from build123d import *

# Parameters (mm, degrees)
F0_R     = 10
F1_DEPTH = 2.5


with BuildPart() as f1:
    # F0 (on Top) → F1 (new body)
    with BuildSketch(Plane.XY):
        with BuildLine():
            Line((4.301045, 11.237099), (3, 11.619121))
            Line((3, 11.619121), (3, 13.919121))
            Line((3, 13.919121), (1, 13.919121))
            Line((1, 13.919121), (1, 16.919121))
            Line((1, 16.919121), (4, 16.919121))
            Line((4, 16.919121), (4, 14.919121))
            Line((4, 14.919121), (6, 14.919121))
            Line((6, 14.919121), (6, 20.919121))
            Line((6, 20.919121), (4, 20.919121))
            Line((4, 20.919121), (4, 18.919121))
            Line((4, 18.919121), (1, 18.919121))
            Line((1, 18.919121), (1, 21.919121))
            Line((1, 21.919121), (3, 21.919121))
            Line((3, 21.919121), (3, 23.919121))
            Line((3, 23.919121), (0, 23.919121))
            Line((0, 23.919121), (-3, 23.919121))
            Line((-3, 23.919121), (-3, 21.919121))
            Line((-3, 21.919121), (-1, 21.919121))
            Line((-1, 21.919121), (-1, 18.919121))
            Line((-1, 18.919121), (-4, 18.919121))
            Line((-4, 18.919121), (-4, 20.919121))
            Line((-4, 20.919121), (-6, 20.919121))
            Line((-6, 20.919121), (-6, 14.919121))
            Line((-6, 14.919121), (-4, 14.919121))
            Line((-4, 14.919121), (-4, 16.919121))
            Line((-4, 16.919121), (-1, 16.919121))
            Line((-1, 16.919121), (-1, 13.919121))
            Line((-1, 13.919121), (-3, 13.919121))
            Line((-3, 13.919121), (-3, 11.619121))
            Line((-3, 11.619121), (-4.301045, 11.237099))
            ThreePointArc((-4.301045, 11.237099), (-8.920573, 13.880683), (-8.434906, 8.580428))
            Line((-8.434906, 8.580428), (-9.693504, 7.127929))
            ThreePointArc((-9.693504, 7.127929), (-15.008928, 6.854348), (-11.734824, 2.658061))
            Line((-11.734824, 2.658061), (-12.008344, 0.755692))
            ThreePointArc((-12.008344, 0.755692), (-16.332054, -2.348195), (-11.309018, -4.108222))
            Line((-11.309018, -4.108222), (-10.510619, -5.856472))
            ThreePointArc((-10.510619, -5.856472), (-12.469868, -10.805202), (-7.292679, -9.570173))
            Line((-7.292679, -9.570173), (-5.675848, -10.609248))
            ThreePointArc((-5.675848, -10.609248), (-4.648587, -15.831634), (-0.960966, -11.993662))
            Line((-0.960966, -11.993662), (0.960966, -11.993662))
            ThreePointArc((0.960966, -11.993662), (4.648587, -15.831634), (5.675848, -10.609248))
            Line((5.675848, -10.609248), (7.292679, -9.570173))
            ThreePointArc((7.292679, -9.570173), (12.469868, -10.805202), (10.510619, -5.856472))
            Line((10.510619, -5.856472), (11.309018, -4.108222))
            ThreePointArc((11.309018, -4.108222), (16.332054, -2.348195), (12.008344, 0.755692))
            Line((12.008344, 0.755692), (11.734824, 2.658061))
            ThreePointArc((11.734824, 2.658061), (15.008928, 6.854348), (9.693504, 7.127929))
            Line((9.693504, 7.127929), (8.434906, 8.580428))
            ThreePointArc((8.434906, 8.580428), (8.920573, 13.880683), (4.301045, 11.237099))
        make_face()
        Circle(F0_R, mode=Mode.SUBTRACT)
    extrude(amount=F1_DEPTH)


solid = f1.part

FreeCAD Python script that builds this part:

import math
import FreeCAD as App
import Part
import Sketcher
Q = App.Units.Quantity

doc = App.newDocument("Part")
body = doc.addObject("PartDesign::Body", "Body")

sketch1 = body.newObject("Sketcher::SketchObject", "Sketch")
sketch1.AttachmentSupport = (doc.getObject("XY_Plane"), [""])
sketch1.MapMode = "FlatFace"
sketch1.addGeometry([
    Part.LineSegment(App.Vector(4.3, 11.2, 0), App.Vector(3, 11.6, 0)),
    Part.LineSegment(App.Vector(3, 11.6, 0), App.Vector(3, 13.9, 0)),
    Part.LineSegment(App.Vector(3, 13.9, 0), App.Vector(1, 13.9, 0)),
    Part.LineSegment(App.Vector(1, 13.9, 0), App.Vector(1, 16.9, 0)),
    Part.LineSegment(App.Vector(1, 16.9, 0), App.Vector(4, 16.9, 0)),
    Part.LineSegment(App.Vector(4, 16.9, 0), App.Vector(4, 14.9, 0)),
    Part.LineSegment(App.Vector(4, 14.9, 0), App.Vector(6, 14.9, 0)),
    Part.LineSegment(App.Vector(6, 14.9, 0), App.Vector(6, 20.9, 0)),
    Part.LineSegment(App.Vector(6, 20.9, 0), App.Vector(4, 20.9, 0)),
    Part.LineSegment(App.Vector(4, 20.9, 0), App.Vector(4, 18.9, 0)),
    Part.LineSegment(App.Vector(4, 18.9, 0), App.Vector(1, 18.9, 0)),
    Part.LineSegment(App.Vector(1, 18.9, 0), App.Vector(1, 21.9, 0)),
    Part.LineSegment(App.Vector(1, 21.9, 0), App.Vector(3, 21.9, 0)),
    Part.LineSegment(App.Vector(3, 21.9, 0), App.Vector(3, 23.9, 0)),
    Part.LineSegment(App.Vector(3, 23.9, 0), App.Vector(-3, 23.9, 0)),
    Part.LineSegment(App.Vector(-3, 23.9, 0), App.Vector(-3, 21.9, 0)),
    Part.LineSegment(App.Vector(-3, 21.9, 0), App.Vector(-1, 21.9, 0)),
    Part.LineSegment(App.Vector(-1, 21.9, 0), App.Vector(-1, 18.9, 0)),
    Part.LineSegment(App.Vector(-1, 18.9, 0), App.Vector(-4, 18.9, 0)),
    Part.LineSegment(App.Vector(-4, 18.9, 0), App.Vector(-4, 20.9, 0)),
    Part.LineSegment(App.Vector(-4, 20.9, 0), App.Vector(-6, 20.9, 0)),
    Part.LineSegment(App.Vector(-6, 20.9, 0), App.Vector(-6, 14.9, 0)),
    Part.LineSegment(App.Vector(-6, 14.9, 0), App.Vector(-4, 14.9, 0)),
    Part.LineSegment(App.Vector(-4, 14.9, 0), App.Vector(-4, 16.9, 0)),
    Part.LineSegment(App.Vector(-4, 16.9, 0), App.Vector(-1, 16.9, 0)),
    Part.LineSegment(App.Vector(-1, 16.9, 0), App.Vector(-1, 13.9, 0)),
    Part.LineSegment(App.Vector(-1, 13.9, 0), App.Vector(-3, 13.9, 0)),
    Part.LineSegment(App.Vector(-3, 13.9, 0), App.Vector(-3, 11.6, 0)),
    Part.LineSegment(App.Vector(-3, 11.6, 0), App.Vector(-4.3, 11.2, 0)),
    Part.ArcOfCircle(Part.Circle(App.Vector(-7.3, 11.4, 0), App.Vector(0, 0, 1), 3), math.radians(-2), math.radians(248)),
    Part.LineSegment(App.Vector(-8.4, 8.6, 0), App.Vector(-9.7, 7.1, 0)),
    Part.ArcOfCircle(Part.Circle(App.Vector(-12.3, 5.6, 0), App.Vector(0, 0, 1), 3), math.radians(30), math.radians(280)),
    Part.LineSegment(App.Vector(-11.7, 2.7, 0), App.Vector(-12, 0.8, 0)),
    Part.ArcOfCircle(Part.Circle(App.Vector(-13.4, -1.9, 0), App.Vector(0, 0, 1), 3), math.radians(63), math.radians(313)),
    Part.LineSegment(App.Vector(-11.3, -4.1, 0), App.Vector(-10.5, -5.9, 0)),
    Part.ArcOfCircle(Part.Circle(App.Vector(-10.2, -8.8, 0), App.Vector(0, 0, 1), 3), math.radians(96), math.radians(346)),
    Part.LineSegment(App.Vector(-7.3, -9.6, 0), App.Vector(-5.7, -10.6, 0)),
    Part.ArcOfCircle(Part.Circle(App.Vector(-3.8, -13, 0), App.Vector(0, 0, 1), 3), math.radians(129), math.radians(379)),
    Part.LineSegment(App.Vector(-1, -12, 0), App.Vector(1, -12, 0)),
    Part.ArcOfCircle(Part.Circle(App.Vector(3.8, -13, 0), App.Vector(0, 0, 1), 3), math.radians(161), math.radians(411)),
    Part.LineSegment(App.Vector(5.7, -10.6, 0), App.Vector(7.3, -9.6, 0)),
    Part.ArcOfCircle(Part.Circle(App.Vector(10.2, -8.8, 0), App.Vector(0, 0, 1), 3), math.radians(-166), math.radians(84)),
    Part.LineSegment(App.Vector(10.5, -5.9, 0), App.Vector(11.3, -4.1, 0)),
    Part.ArcOfCircle(Part.Circle(App.Vector(13.4, -1.9, 0), App.Vector(0, 0, 1), 3), math.radians(-133), math.radians(117)),
    Part.LineSegment(App.Vector(12, 0.8, 0), App.Vector(11.7, 2.7, 0)),
    Part.ArcOfCircle(Part.Circle(App.Vector(12.3, 5.6, 0), App.Vector(0, 0, 1), 3), math.radians(-100), math.radians(150)),
    Part.LineSegment(App.Vector(9.7, 7.1, 0), App.Vector(8.4, 8.6, 0)),
    Part.ArcOfCircle(Part.Circle(App.Vector(7.3, 11.4, 0), App.Vector(0, 0, 1), 3), math.radians(-68), math.radians(182)),
    Part.Circle(App.Vector(0, 0, 0), App.Vector(0, 0, 1), 10),
], False)
sketch1.addConstraint([
    Sketcher.Constraint("Coincident", 0, 2, 1, 1),
    Sketcher.Constraint("Coincident", 1, 2, 2, 1),
    Sketcher.Constraint("Coincident", 2, 2, 3, 1),
    Sketcher.Constraint("Coincident", 3, 2, 4, 1),
    Sketcher.Constraint("Coincident", 4, 2, 5, 1),
    Sketcher.Constraint("Coincident", 5, 2, 6, 1),
    Sketcher.Constraint("Coincident", 6, 2, 7, 1),
    Sketcher.Constraint("Coincident", 7, 2, 8, 1),
    Sketcher.Constraint("Coincident", 8, 2, 9, 1),
    Sketcher.Constraint("Coincident", 9, 2, 10, 1),
    Sketcher.Constraint("Coincident", 10, 2, 11, 1),
    Sketcher.Constraint("Coincident", 11, 2, 12, 1),
    Sketcher.Constraint("Coincident", 12, 2, 13, 1),
    Sketcher.Constraint("Coincident", 13, 2, 14, 1),
    Sketcher.Constraint("Coincident", 14, 2, 15, 1),
    Sketcher.Constraint("Coincident", 15, 2, 16, 1),
    Sketcher.Constraint("Coincident", 16, 2, 17, 1),
    Sketcher.Constraint("Coincident", 17, 2, 18, 1),
    Sketcher.Constraint("Coincident", 18, 2, 19, 1),
    Sketcher.Constraint("Coincident", 19, 2, 20, 1),
    Sketcher.Constraint("Coincident", 20, 2, 21, 1),
    Sketcher.Constraint("Coincident", 21, 2, 22, 1),
    Sketcher.Constraint("Coincident", 22, 2, 23, 1),
    Sketcher.Constraint("Coincident", 23, 2, 24, 1),
    Sketcher.Constraint("Coincident", 24, 2, 25, 1),
    Sketcher.Constraint("Coincident", 25, 2, 26, 1),
    Sketcher.Constraint("Coincident", 26, 2, 27, 1),
    Sketcher.Constraint("Coincident", 27, 2, 28, 1),
    Sketcher.Constraint("Coincident", 28, 2, 29, 1),
    Sketcher.Constraint("Coincident", 29, 2, 30, 1),
    Sketcher.Constraint("Coincident", 30, 2, 31, 1),
    Sketcher.Constraint("Coincident", 31, 2, 32, 1),
    Sketcher.Constraint("Coincident", 32, 2, 33, 1),
    Sketcher.Constraint("Coincident", 33, 2, 34, 1),
    Sketcher.Constraint("Coincident", 34, 2, 35, 1),
    Sketcher.Constraint("Coincident", 35, 2, 36, 1),
    Sketcher.Constraint("Coincident", 36, 2, 37, 1),
    Sketcher.Constraint("Coincident", 37, 2, 38, 1),
    Sketcher.Constraint("Coincident", 38, 2, 39, 1),
    Sketcher.Constraint("Coincident", 39, 2, 40, 1),
    Sketcher.Constraint("Coincident", 40, 2, 41, 1),
    Sketcher.Constraint("Coincident", 41, 2, 42, 1),
    Sketcher.Constraint("Coincident", 42, 2, 43, 1),
    Sketcher.Constraint("Coincident", 43, 2, 44, 1),
    Sketcher.Constraint("Coincident", 44, 2, 45, 1),
    Sketcher.Constraint("Coincident", 45, 2, 46, 1),
    Sketcher.Constraint("Coincident", 46, 2, 47, 1),
    Sketcher.Constraint("Coincident", 47, 2, 0, 1),
    Sketcher.Constraint("Vertical", 1),
    Sketcher.Constraint("Horizontal", 2),
    Sketcher.Constraint("Vertical", 3),
    Sketcher.Constraint("Horizontal", 4),
    Sketcher.Constraint("Vertical", 5),
    Sketcher.Constraint("Horizontal", 6),
    Sketcher.Constraint("Vertical", 7),
    Sketcher.Constraint("Horizontal", 8),
    Sketcher.Constraint("Vertical", 9),
    Sketcher.Constraint("Horizontal", 10),
    Sketcher.Constraint("Vertical", 11),
    Sketcher.Constraint("Horizontal", 12),
    Sketcher.Constraint("Vertical", 13),
    Sketcher.Constraint("Horizontal", 14),
    Sketcher.Constraint("Vertical", 15),
    Sketcher.Constraint("Horizontal", 16),
    Sketcher.Constraint("Vertical", 17),
    Sketcher.Constraint("Horizontal", 18),
    Sketcher.Constraint("Vertical", 19),
    Sketcher.Constraint("Horizontal", 20),
    Sketcher.Constraint("Vertical", 21),
    Sketcher.Constraint("Horizontal", 22),
    Sketcher.Constraint("Vertical", 23),
    Sketcher.Constraint("Horizontal", 24),
    Sketcher.Constraint("Vertical", 25),
    Sketcher.Constraint("Horizontal", 26),
    Sketcher.Constraint("Vertical", 27),
    Sketcher.Constraint("Horizontal", 38),
    Sketcher.Constraint("Coincident", 48, 3, -1, 1),
    Sketcher.Constraint("Equal", 29, 31),
    Sketcher.Constraint("Equal", 31, 33),
    Sketcher.Constraint("Equal", 33, 35),
    Sketcher.Constraint("Equal", 35, 37),
    Sketcher.Constraint("Equal", 37, 39),
    Sketcher.Constraint("Equal", 39, 41),
    Sketcher.Constraint("Equal", 41, 43),
    Sketcher.Constraint("Equal", 43, 45),
    Sketcher.Constraint("Equal", 45, 47),
    Sketcher.Constraint("Symmetric", 37, 3, 39, 3, -2),
    Sketcher.Constraint("Symmetric", 35, 3, 41, 3, -2),
    Sketcher.Constraint("Symmetric", 33, 3, 43, 3, -2),
    Sketcher.Constraint("Symmetric", 31, 3, 45, 3, -2),
    Sketcher.Constraint("Symmetric", 29, 3, 47, 3, -2),
    Sketcher.Constraint("Symmetric", 12, 2, 15, 2, -2),
    Sketcher.Constraint("Symmetric", 10, 2, 17, 2, -2),
    Sketcher.Constraint("Symmetric", 8, 2, 19, 2, -2),
    Sketcher.Constraint("Symmetric", 6, 2, 21, 2, -2),
    Sketcher.Constraint("Symmetric", 4, 2, 23, 2, -2),
    Sketcher.Constraint("Symmetric", 2, 2, 25, 2, -2),
    Sketcher.Constraint("Symmetric", 0, 2, 27, 2, -2),
    Sketcher.Constraint("Horizontal", 36, 2, 39, 2),
    Sketcher.Constraint("Horizontal", 35, 2, 40, 2),
    Sketcher.Constraint("Horizontal", 34, 2, 41, 2),
    Sketcher.Constraint("Horizontal", 33, 2, 42, 2),
    Sketcher.Constraint("Horizontal", 32, 2, 43, 2),
    Sketcher.Constraint("Horizontal", 31, 2, 44, 2),
    Sketcher.Constraint("Horizontal", 30, 2, 45, 2),
    Sketcher.Constraint("Horizontal", 29, 2, 46, 2),
    Sketcher.Constraint("Horizontal", 28, 2, 47, 2),
    Sketcher.Constraint("Vertical", 5, 2, 8, 2),
    Sketcher.Constraint("Vertical", 3, 2, 10, 2),
    Sketcher.Constraint("Vertical", 1, 2, 12, 2),
    Sketcher.Constraint("Equal", 2, 6),
    Sketcher.Constraint("Equal", 24, 3),
    Sketcher.Constraint("Equal", 26, 5),
    Sketcher.Constraint("Equal", 14, 7),
    Sketcher.Constraint("Equal", 5, 9),
    Sketcher.Constraint("Equal", 3, 11),
    Sketcher.Constraint("Equal", 9, 13),
    Sketcher.Constraint("Equal", 30, 32),
    Sketcher.Constraint("Equal", 32, 34),
    Sketcher.Constraint("Equal", 34, 36),
    Sketcher.Constraint("Diameter", 48, Q("20 mm")),
    Sketcher.Constraint("Radius", 29, Q("3 mm")),
    Sketcher.Constraint("DistanceX", 2, 2, 2, 1, Q("2 mm")),
    Sketcher.Constraint("DistanceX", 4, 1, 4, 2, Q("3 mm")),
    Sketcher.Constraint("DistanceX", 14, 2, 14, 1, Q("6 mm")),
    Sketcher.Constraint("DistanceY", 1, 1, 1, 2, Q("2.3 mm")),
    Sketcher.Constraint("DistanceX", 34, 2, 35, 3, Q("0.308 mm")),
    Sketcher.Constraint("DistanceY", -1, 1, 28, 2, Q("11.237099 mm")),
    Sketcher.Constraint("DistanceX", 33, 3, 37, 3, Q("9.5592 mm")),
    Sketcher.Constraint("DistanceX", 29, 3, 47, 3, Q("14.597302 mm")),
    Sketcher.Constraint("DistanceY", 47, 3, 0, 2, Q("0.262198 mm")),
    Sketcher.Constraint("DistanceX", 30, 2, 29, 2, Q("1.258598 mm")),
    Sketcher.Constraint("DistanceY", 30, 2, 29, 2, Q("1.452499 mm")),
    Sketcher.Constraint("DistanceX", 33, 2, 35, 3, Q("1.106399 mm")),
    Sketcher.Constraint("DistanceY", 35, 2, 34, 2, Q("3.713701 mm")),
    Sketcher.Constraint("Distance", 0, Q("1.355972 mm")),
    Sketcher.Constraint("DistanceX", 38, 1, 38, 2, Q("1.921932 mm")),
    Sketcher.Constraint("DistanceX", 33, 3, -1, 1, Q("13.36259 mm")),
    Sketcher.Constraint("DistanceY", 33, 3, -1, 1, Q("1.92125 mm")),
    Sketcher.Constraint("DistanceX", 35, 3, -1, 1, Q("10.202619 mm")),
    Sketcher.Constraint("DistanceY", -1, 1, 29, 2, Q("8.580428 mm")),
    Sketcher.Constraint("DistanceY", -1, 1, 31, 2, Q("2.658061 mm")),
    Sketcher.Constraint("DistanceX", 36, 2, -1, 1, Q("5.675848 mm")),
    Sketcher.Constraint("DistanceY", -1, 1, 43, 2, Q("0.755692 mm")),
])
pad1 = body.newObject("PartDesign::Pad", "Pad")
pad1.Profile = sketch1
pad1.Length = 2.5

doc.recompute()
